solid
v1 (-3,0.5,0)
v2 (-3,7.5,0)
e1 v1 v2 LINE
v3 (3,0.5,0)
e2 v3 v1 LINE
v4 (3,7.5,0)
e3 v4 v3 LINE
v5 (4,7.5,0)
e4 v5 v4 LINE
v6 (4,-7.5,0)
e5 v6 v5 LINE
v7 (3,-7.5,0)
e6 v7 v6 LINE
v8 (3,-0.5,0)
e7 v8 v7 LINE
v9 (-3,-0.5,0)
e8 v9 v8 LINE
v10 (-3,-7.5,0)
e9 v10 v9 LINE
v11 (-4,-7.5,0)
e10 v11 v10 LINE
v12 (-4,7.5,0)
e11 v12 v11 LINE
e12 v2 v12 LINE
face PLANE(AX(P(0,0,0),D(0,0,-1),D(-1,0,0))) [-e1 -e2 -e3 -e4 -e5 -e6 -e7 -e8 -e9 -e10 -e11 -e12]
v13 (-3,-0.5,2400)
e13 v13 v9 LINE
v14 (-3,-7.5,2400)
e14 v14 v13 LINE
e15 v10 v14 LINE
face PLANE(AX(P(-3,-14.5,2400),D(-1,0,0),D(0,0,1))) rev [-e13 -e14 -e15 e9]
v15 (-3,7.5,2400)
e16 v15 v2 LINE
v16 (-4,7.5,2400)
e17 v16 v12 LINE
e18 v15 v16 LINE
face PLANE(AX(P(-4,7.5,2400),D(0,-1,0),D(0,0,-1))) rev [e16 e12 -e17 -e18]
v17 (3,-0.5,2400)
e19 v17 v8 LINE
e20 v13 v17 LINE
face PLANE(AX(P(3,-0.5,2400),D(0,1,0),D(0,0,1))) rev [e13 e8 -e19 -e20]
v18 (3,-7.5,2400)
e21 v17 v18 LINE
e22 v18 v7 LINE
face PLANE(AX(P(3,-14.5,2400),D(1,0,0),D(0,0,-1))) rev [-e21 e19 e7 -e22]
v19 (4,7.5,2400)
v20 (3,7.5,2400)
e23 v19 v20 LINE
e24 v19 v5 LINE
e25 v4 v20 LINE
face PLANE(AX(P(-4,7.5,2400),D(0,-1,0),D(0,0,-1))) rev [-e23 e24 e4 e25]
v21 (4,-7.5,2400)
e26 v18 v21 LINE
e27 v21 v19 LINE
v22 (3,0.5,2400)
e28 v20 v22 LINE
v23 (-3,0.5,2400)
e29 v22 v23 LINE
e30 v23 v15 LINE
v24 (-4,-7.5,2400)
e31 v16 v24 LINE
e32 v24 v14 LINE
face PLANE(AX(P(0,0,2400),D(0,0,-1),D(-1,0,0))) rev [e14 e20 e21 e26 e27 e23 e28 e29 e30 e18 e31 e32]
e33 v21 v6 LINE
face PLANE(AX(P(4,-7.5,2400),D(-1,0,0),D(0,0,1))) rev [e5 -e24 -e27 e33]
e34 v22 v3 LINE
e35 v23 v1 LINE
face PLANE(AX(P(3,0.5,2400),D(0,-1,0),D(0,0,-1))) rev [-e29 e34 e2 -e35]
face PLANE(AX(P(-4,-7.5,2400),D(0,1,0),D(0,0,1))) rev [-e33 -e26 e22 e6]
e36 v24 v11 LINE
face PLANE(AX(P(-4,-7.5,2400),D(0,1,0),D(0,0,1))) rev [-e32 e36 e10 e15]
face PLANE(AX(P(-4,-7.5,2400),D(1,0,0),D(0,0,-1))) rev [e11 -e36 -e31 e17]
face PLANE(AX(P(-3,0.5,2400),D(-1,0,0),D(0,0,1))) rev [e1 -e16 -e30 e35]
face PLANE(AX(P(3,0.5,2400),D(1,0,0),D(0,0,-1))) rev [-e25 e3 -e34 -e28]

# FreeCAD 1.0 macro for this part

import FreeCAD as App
import Part
import Sketcher
from FreeCAD import Vector
Q = App.Units.Quantity


def add_polygon(sketch, points):
    """Adds a closed chain of lines whose ends are joined by coincident constraints."""
    first, n = sketch.GeometryCount, len(points)
    for a, b in zip(points, points[1:] + points[:1]):
        sketch.addGeometry(Part.LineSegment(App.Vector(*a, 0), App.Vector(*b, 0)), False)
    for i in range(n):
        sketch.addConstraint(Sketcher.Constraint("Coincident", first + i, 2, first + (i + 1) % n, 1))

doc = App.newDocument("Part")
body = doc.addObject("PartDesign::Body", "Body")

sketch1 = body.newObject("Sketcher::SketchObject", "Sketch")
sketch1.AttachmentSupport = (doc.getObject("XY_Plane"), [""])
sketch1.MapMode = "FlatFace"
add_polygon(sketch1, [(-4, 8), (-4, -8), (4, -8), (4, 8)])
sketch1.addConstraint([
    Sketcher.Constraint("Vertical", 0),
    Sketcher.Constraint("Horizontal", 1),
    Sketcher.Constraint("Vertical", 2),
    Sketcher.Constraint("Horizontal", 3),
    Sketcher.Constraint("Symmetric", 0, 2, 2, 2, -1, 1),
    Sketcher.Constraint("DistanceX", 1, 1, 1, 2, Q("8 mm")),
    Sketcher.Constraint("DistanceY", 0, 2, 0, 1, Q("15 mm")),
])
pad1 = body.newObject("PartDesign::Pad", "Pad")
pad1.Profile = sketch1
pad1.Length = 2400

sketch2 = body.newObject("Sketcher::SketchObject", "Sketch001")
sketch2.AttachmentSupport = (doc.getObject("XY_Plane"), [""])
sketch2.MapMode = "FlatFace"
add_polygon(sketch2, [(3, 0), (3, -14), (-3, -14), (-3, 0)])
add_polygon(sketch2, [(3, 14), (3, 0), (-3, 0), (-3, 14)])
sketch2.addConstraint([
    Sketcher.Constraint("Vertical", 0),
    Sketcher.Constraint("Horizontal", 1),
    Sketcher.Constraint("Vertical", 2),
    Sketcher.Constraint("Horizontal", 3),
    Sketcher.Constraint("Vertical", 4),
    Sketcher.Constraint("Horizontal", 5),
    Sketcher.Constraint("Vertical", 6),
    Sketcher.Constraint("Horizontal", 7),
    Sketcher.Constraint("Symmetric", 2, 2, 4, 2, -1, 1),
    Sketcher.Constraint("Symmetric", 0, 2, 6, 2, -1, 1),
    Sketcher.Constraint("Vertical", 3, 2, 4, 2),
    Sketcher.Constraint("DistanceX", 1, 2, 1, 1, Q("6 mm")),
    Sketcher.Constraint("DistanceY", 0, 2, 0, 1, Q("14 mm")),
    Sketcher.Constraint("DistanceY", 3, 2, 4, 2, Q("1 mm")),
])
pocket1 = body.newObject("PartDesign::Pocket", "Pocket")
pocket1.Profile = sketch2
pocket1.Length = 2400
pocket1.Reversed = True

doc.recompute()
